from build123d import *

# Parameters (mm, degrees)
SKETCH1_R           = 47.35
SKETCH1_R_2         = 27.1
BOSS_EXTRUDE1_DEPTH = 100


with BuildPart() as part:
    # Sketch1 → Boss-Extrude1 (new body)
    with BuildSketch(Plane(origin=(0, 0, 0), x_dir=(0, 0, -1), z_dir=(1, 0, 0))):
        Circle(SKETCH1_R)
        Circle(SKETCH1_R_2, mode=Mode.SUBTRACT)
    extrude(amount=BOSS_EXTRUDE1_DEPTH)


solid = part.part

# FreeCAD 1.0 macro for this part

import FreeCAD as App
import Part
import Sketcher

V = App.Vector
Q = App.Units.Quantity

doc = App.newDocument("Part")
body = doc.addObject("PartDesign::Body", "Body")

# Sketch on YZ plane
sketch1 = body.newObject("Sketcher::SketchObject", "Sketch")
sketch1.AttachmentSupport = (doc.getObject("YZ_Plane"), [""])
sketch1.MapMode = "FlatFace"
sketch1.addGeometry([
    Part.Circle(V(0, 0, 0), V(0, 0, 1), 47),
    Part.Circle(V(0, 0, 0), V(0, 0, 1), 27),
], False)
sketch1.addConstraint([
    Sketcher.Constraint("Coincident", 0, 3, -1, 1),
    Sketcher.Constraint("Coincident", 1, 3, -1, 1),
    Sketcher.Constraint("Diameter", 0, Q("94.7 mm")),
    Sketcher.Constraint("Diameter", 1, Q("54.2 mm")),
])
pad1 = body.newObject("PartDesign::Pad", "Pad")
pad1.Profile = sketch1
pad1.Length = 100

doc.recompute()
